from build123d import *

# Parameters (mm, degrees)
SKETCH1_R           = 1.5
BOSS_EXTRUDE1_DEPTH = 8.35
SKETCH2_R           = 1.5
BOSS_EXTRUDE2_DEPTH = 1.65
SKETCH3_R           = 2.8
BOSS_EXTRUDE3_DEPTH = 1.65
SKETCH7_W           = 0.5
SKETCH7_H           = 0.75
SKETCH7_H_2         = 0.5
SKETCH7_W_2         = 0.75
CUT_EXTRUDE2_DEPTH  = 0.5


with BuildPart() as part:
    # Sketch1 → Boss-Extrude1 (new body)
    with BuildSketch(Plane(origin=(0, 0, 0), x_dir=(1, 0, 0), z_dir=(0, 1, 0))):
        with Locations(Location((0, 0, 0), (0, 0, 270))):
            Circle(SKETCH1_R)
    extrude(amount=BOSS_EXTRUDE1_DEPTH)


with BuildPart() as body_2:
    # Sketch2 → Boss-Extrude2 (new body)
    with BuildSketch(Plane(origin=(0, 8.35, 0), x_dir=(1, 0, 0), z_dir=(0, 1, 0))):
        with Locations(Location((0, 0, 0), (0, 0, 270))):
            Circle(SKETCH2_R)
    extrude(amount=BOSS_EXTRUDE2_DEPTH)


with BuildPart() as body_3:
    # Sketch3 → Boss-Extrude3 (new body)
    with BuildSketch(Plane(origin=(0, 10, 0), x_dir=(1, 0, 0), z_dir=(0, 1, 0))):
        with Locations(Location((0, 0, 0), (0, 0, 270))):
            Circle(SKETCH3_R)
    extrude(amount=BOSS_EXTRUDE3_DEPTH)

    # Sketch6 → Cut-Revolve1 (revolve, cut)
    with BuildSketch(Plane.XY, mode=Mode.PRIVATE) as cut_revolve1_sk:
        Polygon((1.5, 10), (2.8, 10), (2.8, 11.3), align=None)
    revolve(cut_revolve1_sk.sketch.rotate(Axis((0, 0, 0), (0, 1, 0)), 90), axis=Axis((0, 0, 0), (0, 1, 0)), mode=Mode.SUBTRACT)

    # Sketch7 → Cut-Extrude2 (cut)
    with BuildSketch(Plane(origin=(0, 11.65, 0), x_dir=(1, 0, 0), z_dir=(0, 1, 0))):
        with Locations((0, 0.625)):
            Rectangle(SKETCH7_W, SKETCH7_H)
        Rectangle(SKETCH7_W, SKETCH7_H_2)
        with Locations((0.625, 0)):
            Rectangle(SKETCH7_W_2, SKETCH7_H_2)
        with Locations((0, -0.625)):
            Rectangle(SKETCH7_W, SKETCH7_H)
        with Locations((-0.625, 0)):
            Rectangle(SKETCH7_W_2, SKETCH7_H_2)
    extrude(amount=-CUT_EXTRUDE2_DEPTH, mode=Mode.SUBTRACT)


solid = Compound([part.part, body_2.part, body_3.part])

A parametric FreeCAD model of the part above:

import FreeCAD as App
import Part
import Sketcher
from FreeCAD import Vector

doc = App.newDocument("Part")
body = doc.addObject("PartDesign::Body", "Body")

sketch1 = doc.addObject("Sketcher::SketchObject", "Sketch")
body.addObject(sketch1)
sketch1.AttachmentSupport = (doc.XZ_Plane, [""])
sketch1.MapMode = "FlatFace"
sketch1.addGeometry(Part.Circle(Vector(0, 0, 0), Vector(0, 0, 1), 1.5), False)
sketch1.addConstraint([
    Sketcher.Constraint("Coincident", 0, 3, -1, 1),
    Sketcher.Constraint("Diameter", 0, 3.0),
])
pad1 = doc.addObject("PartDesign::Pad", "Pad")
body.addObject(pad1)
pad1.Profile = sketch1
pad1.Length = 8.35
pad1.Reversed = True
body2 = doc.addObject("PartDesign::Body", "Body001")

sketch2 = doc.addObject("Sketcher::SketchObject", "Sketch001")
body2.addObject(sketch2)
sketch2.AttachmentSupport = (doc.getObject("XZ_Plane001"), [""])
sketch2.MapMode = "FlatFace"
sketch2.AttachmentOffset = App.Placement(Vector(0, 0, -8.35), App.Rotation())
sketch2.addGeometry(Part.Circle(Vector(0, 0, 0), Vector(0, 0, 1), 1.5), False)
sketch2.addConstraint([
    Sketcher.Constraint("Coincident", 0, 3, -1, 1),
    Sketcher.Constraint("Diameter", 0, 3.0),
])
pad2 = doc.addObject("PartDesign::Pad", "Pad001")
body2.addObject(pad2)
pad2.Profile = sketch2
pad2.Length = 1.65
pad2.Reversed = True
body3 = doc.addObject("PartDesign::Body", "Body002")

sketch3 = doc.addObject("Sketcher::SketchObject", "Sketch002")
body3.addObject(sketch3)
sketch3.AttachmentSupport = (doc.getObject("XZ_Plane002"), [""])
sketch3.MapMode = "FlatFace"
sketch3.AttachmentOffset = App.Placement(Vector(0, 0, -10), App.Rotation())
sketch3.addGeometry(Part.Circle(Vector(0, 0, 0), Vector(0, 0, 1), 2.8), False)
sketch3.addConstraint([
    Sketcher.Constraint("Coincident", 0, 3, -1, 1),
    Sketcher.Constraint("Diameter", 0, 5.6),
])
pad3 = doc.addObject("PartDesign::Pad", "Pad002")
body3.addObject(pad3)
pad3.Profile = sketch3
pad3.Length = 1.65
pad3.Reversed = True

sketch4 = doc.addObject("Sketcher::SketchObject", "Sketch003")
body3.addObject(sketch4)
sketch4.AttachmentSupport = (doc.getObject("XY_Plane002"), [""])
sketch4.MapMode = "FlatFace"
sketch4.addGeometry([
    Part.LineSegment(Vector(1.5, 10, 0), Vector(2.8, 10, 0)),
    Part.LineSegment(Vector(2.8, 10, 0), Vector(2.8, 11.3, 0)),
    Part.LineSegment(Vector(2.8, 11.3, 0), Vector(1.5, 10, 0)),
], False)
sketch4.addConstraint([
    Sketcher.Constraint("Coincident", 0, 2, 1, 1),
    Sketcher.Constraint("Coincident", 1, 2, 2, 1),
    Sketcher.Constraint("Coincident", 2, 2, 0, 1),
    Sketcher.Constraint("Horizontal", 0),
    Sketcher.Constraint("Vertical", 1),
    Sketcher.Constraint("Equal", 0, 1),
    Sketcher.Constraint("DistanceX", 0, 1, 0, 2, 1.3),
    Sketcher.Constraint("DistanceY", -1, 1, 0, 2, 10.0),
    Sketcher.Constraint("DistanceX", -1, 1, 0, 2, 2.8),
])
groove = doc.addObject("PartDesign::Groove", "Groove")
body3.addObject(groove)
groove.Profile = sketch4
groove.ReferenceAxis = (sketch4, ["V_Axis"])
groove.Angle = 360

sketch5 = doc.addObject("Sketcher::SketchObject", "Sketch004")
body3.addObject(sketch5)
sketch5.AttachmentSupport = (doc.getObject("XZ_Plane002"), [""])
sketch5.MapMode = "FlatFace"
sketch5.AttachmentOffset = App.Placement(Vector(0, 0, -11.65), App.Rotation())
sketch5.addGeometry([
    Part.LineSegment(Vector(-0.2, -1, 0), Vector(-0.2, -0.2, 0)),
    Part.LineSegment(Vector(-0.2, -0.2, 0), Vector(-1, -0.2, 0)),
    Part.LineSegment(Vector(-1, -0.2, 0), Vector(-1, 0.2, 0)),
    Part.LineSegment(Vector(-1, 0.2, 0), Vector(-0.2, 0.2, 0)),
    Part.LineSegment(Vector(-0.2, 0.2, 0), Vector(-0.2, 1, 0)),
    Part.LineSegment(Vector(-0.2, 1, 0), Vector(0.2, 1, 0)),
    Part.LineSegment(Vector(0.2, 1, 0), Vector(0.2, 0.2, 0)),
    Part.LineSegment(Vector(0.2, 0.2, 0), Vector(1, 0.2, 0)),
    Part.LineSegment(Vector(1, 0.2, 0), Vector(1, -0.2, 0)),
    Part.LineSegment(Vector(1, -0.2, 0), Vector(0.2, -0.2, 0)),
    Part.LineSegment(Vector(0.2, -0.2, 0), Vector(0.2, -1, 0)),
    Part.LineSegment(Vector(0.2, -1, 0), Vector(-0.2, -1, 0)),
], False)
sketch5.addConstraint([
    Sketcher.Constraint("Coincident", 0, 2, 1, 1),
    Sketcher.Constraint("Coincident", 1, 2, 2, 1),
    Sketcher.Constraint("Coincident", 2, 2, 3, 1),
    Sketcher.Constraint("Coincident", 3, 2, 4, 1),
    Sketcher.Constraint("Coincident", 4, 2, 5, 1),
    Sketcher.Constraint("Coincident", 5, 2, 6, 1),
    Sketcher.Constraint("Coincident", 6, 2, 7, 1),
    Sketcher.Constraint("Coincident", 7, 2, 8, 1),
    Sketcher.Constraint("Coincident", 8, 2, 9, 1),
    Sketcher.Constraint("Coincident", 9, 2, 10, 1),
    Sketcher.Constraint("Coincident", 10, 2, 11, 1),
    Sketcher.Constraint("Coincident", 11, 2, 0, 1),
    Sketcher.Constraint("Vertical", 0),
    Sketcher.Constraint("Horizontal", 1),
    Sketcher.Constraint("Vertical", 2),
    Sketcher.Constraint("Horizontal", 3),
    Sketcher.Constraint("Vertical", 4),
    Sketcher.Constraint("Horizontal", 5),
    Sketcher.Constraint("Vertical", 6),
    Sketcher.Constraint("Horizontal", 7),
    Sketcher.Constraint("Vertical", 8),
    Sketcher.Constraint("Horizontal", 9),
    Sketcher.Constraint("Vertical", 10),
    Sketcher.Constraint("Horizontal", 11),
    Sketcher.Constraint("Symmetric", 0, 2, 6, 2, -1, 1),
    Sketcher.Constraint("Symmetric", 2, 2, 8, 2, -1, 1),
    Sketcher.Constraint("Symmetric", 4, 2, 10, 2, -1, 1),
    Sketcher.Constraint("Symmetric", 3, 2, 6, 2, -2),
    Sketcher.Constraint("Equal", 9, 0),
    Sketcher.Constraint("Equal", 11, 2),
    Sketcher.Constraint("DistanceX", 5, 1, 5, 2, 0.5),
    Sketcher.Constraint("DistanceX", 1, 2, -1, 1, 1.0),
])
pocket1 = doc.addObject("PartDesign::Pocket", "Pocket")
body3.addObject(pocket1)
pocket1.Profile = sketch5
pocket1.Length = 0.5
pocket1.Reversed = True

doc.recompute()
